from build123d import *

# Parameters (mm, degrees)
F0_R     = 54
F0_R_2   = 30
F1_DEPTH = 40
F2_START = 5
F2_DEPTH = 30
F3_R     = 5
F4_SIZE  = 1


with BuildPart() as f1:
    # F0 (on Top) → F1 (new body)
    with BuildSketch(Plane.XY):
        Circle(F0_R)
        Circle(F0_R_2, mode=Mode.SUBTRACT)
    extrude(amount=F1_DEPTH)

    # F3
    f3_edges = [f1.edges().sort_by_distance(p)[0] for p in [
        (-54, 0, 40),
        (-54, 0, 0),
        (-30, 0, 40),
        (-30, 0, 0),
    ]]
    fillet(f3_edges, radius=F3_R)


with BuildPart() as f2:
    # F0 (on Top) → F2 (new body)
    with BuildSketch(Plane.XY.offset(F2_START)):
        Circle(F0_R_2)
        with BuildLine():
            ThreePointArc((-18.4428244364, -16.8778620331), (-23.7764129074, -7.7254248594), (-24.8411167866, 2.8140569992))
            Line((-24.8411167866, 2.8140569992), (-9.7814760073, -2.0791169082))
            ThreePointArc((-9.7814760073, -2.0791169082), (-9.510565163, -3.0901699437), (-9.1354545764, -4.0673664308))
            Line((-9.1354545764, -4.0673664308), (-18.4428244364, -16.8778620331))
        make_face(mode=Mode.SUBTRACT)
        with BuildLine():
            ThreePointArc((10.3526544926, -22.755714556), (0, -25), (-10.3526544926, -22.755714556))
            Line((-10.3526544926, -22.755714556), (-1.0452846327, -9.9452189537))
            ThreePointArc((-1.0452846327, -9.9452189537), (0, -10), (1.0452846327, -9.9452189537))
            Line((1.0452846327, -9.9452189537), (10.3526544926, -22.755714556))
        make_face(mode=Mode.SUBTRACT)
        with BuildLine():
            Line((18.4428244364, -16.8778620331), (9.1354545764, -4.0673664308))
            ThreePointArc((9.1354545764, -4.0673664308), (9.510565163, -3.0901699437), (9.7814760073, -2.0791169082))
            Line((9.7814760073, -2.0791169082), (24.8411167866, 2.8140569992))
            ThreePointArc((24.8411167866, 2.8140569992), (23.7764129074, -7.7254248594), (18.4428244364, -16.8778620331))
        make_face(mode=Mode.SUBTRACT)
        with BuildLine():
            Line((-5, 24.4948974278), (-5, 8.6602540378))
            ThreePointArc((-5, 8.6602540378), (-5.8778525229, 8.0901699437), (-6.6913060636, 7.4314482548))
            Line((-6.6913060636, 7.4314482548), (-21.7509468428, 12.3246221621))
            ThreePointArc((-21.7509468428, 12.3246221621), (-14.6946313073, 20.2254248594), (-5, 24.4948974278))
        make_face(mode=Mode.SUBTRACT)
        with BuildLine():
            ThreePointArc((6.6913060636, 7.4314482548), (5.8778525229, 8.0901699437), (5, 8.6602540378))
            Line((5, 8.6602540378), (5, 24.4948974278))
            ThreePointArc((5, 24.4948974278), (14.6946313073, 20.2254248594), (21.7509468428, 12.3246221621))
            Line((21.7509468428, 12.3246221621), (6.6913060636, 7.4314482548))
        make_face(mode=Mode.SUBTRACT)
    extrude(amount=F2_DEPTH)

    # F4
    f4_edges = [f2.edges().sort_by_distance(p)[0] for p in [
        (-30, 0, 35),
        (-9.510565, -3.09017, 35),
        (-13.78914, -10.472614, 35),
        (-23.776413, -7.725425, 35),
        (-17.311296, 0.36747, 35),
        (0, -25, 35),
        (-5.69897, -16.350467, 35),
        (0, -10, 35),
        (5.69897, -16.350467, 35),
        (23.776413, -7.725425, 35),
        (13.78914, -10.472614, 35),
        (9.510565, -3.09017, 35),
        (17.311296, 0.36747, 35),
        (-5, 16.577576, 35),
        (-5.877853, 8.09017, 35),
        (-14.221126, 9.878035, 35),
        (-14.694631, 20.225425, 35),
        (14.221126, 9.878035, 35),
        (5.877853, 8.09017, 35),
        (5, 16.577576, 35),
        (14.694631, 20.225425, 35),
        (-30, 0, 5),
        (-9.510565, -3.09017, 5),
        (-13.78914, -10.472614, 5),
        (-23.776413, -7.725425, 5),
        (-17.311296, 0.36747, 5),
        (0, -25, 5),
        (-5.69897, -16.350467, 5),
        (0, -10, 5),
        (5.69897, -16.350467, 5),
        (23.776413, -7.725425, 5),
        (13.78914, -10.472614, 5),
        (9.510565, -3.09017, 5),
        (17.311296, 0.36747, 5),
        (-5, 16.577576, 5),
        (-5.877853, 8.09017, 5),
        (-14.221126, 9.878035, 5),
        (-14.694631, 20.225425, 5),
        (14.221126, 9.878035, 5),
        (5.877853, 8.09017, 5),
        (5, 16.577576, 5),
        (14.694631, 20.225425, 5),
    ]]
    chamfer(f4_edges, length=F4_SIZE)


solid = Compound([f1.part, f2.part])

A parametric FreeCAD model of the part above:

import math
import FreeCAD as App
import Part
import Sketcher
from FreeCAD import Vector
Q = App.Units.Quantity


def edges_at(feature, points):
    """Names of the edges that pass closest to the given points."""
    edges = feature.Shape.Edges
    near = lambda p: min(range(len(edges)), key=lambda i: edges[i].distToShape(Part.Vertex(*p))[0])
    return sorted({f"Edge{near(p) + 1}" for p in points})

doc = App.newDocument("Part")
body = doc.addObject("PartDesign::Body", "Body")

# Sketch on XY plane
sketch1 = doc.addObject("Sketcher::SketchObject", "Sketch")
body.addObject(sketch1)
sketch1.AttachmentSupport = (doc.XY_Plane, [""])
sketch1.MapMode = "FlatFace"
sketch1.addGeometry(Part.Circle(Vector(0, 0, 0), Vector(0, 0, 1), 54), False)
sketch1.addGeometry(Part.Circle(Vector(0, 0, 0), Vector(0, 0, 1), 30), False)
sketch1.addConstraint(Sketcher.Constraint("Coincident", 0, 3, -1, 1))
sketch1.addConstraint(Sketcher.Constraint("Coincident", 1, 3, -1, 1))
sketch1.addConstraint(Sketcher.Constraint("Diameter", 0, 108.0))
sketch1.addConstraint(Sketcher.Constraint("Diameter", 1, 60.0))
pad1 = doc.addObject("PartDesign::Pad", "Pad")
body.addObject(pad1)
pad1.Profile = sketch1
pad1.Length = 40
doc.recompute()

fillet = doc.addObject("PartDesign::Fillet", "Fillet")
body.addObject(fillet)
fillet.Base = (pad1, edges_at(pad1, [
    (-54, 0, 40),
    (-54, 0, 0),
    (-30, 0, 40),
    (-30, 0, 0),
]))
fillet.Radius = 5
body2 = doc.addObject("PartDesign::Body", "Body001")

# Sketch on XY plane
sketch2 = doc.addObject("Sketcher::SketchObject", "Sketch001")
body2.addObject(sketch2)
sketch2.AttachmentSupport = (doc.getObject("XY_Plane001"), [""])
sketch2.MapMode = "FlatFace"
sketch2.AttachmentOffset = App.Placement(Vector(0, 0, 5), App.Rotation())
sketch2.addGeometry(Part.Circle(Vector(0, 0, 0), Vector(0, 0, 1), 30), False)
sketch2.addGeometry(Part.LineSegment(Vector(1, -9.9, 0), Vector(10.4, -22.8, 0)), False)
sketch2.addGeometry(Part.ArcOfCircle(Part.Circle(Vector(0, 0, 0), Vector(0, 0, 1), 25), math.radians(-114), math.radians(-66)), False)
sketch2.addGeometry(Part.LineSegment(Vector(-10.4, -22.8, 0), Vector(-1, -9.9, 0)), False)
sketch2.addGeometry(Part.ArcOfCircle(Part.Circle(Vector(0, 0, 0), Vector(0, 0, 1), 10), math.radians(-96), math.radians(-84)), False)
sketch2.addGeometry(Part.LineSegment(Vector(-9.1, -4.1, 0), Vector(-18.4, -16.9, 0)), False)
sketch2.addGeometry(Part.ArcOfCircle(Part.Circle(Vector(0, 0, 0), Vector(0, 0, 1), 25), math.radians(174), math.radians(222)), False)
sketch2.addGeometry(Part.LineSegment(Vector(-24.8, 2.8, 0), Vector(-9.8, -2.1, 0)), False)
sketch2.addGeometry(Part.ArcOfCircle(Part.Circle(Vector(0, 0, 0), Vector(0, 0, 1), 10), math.radians(-168), math.radians(-156)), False)
sketch2.addGeometry(Part.ArcOfCircle(Part.Circle(Vector(0, 0, 0), Vector(0, 0, 1), 25), math.radians(-42), math.radians(6)), False)
sketch2.addGeometry(Part.LineSegment(Vector(18.4, -16.9, 0), Vector(9.1, -4.1, 0)), False)
sketch2.addGeometry(Part.ArcOfCircle(Part.Circle(Vector(0, 0, 0), Vector(0, 0, 1), 10), math.radians(-24), math.radians(-12)), False)
sketch2.addGeometry(Part.LineSegment(Vector(9.8, -2.1, 0), Vector(24.8, 2.8, 0)), False)
sketch2.addGeometry(Part.ArcOfCircle(Part.Circle(Vector(0, 0, 0), Vector(0, 0, 1), 25), math.radians(102), math.radians(150)), False)
sketch2.addGeometry(Part.LineSegment(Vector(-5, 24.5, 0), Vector(-5, 8.7, 0)), False)
sketch2.addGeometry(Part.ArcOfCircle(Part.Circle(Vector(0, 0, 0), Vector(0, 0, 1), 10), math.radians(120), math.radians(132)), False)
sketch2.addGeometry(Part.LineSegment(Vector(-6.7, 7.4, 0), Vector(-21.8, 12.3, 0)), False)
sketch2.addGeometry(Part.LineSegment(Vector(21.8, 12.3, 0), Vector(6.7, 7.4, 0)), False)
sketch2.addGeometry(Part.ArcOfCircle(Part.Circle(Vector(0, 0, 0), Vector(0, 0, 1), 10), math.radians(48), math.radians(60)), False)
sketch2.addGeometry(Part.LineSegment(Vector(5, 8.7, 0), Vector(5, 24.5, 0)), False)
sketch2.addGeometry(Part.ArcOfCircle(Part.Circle(Vector(0, 0, 0), Vector(0, 0, 1), 25), math.radians(30), math.radians(78)), False)
sketch2.addConstraint(Sketcher.Constraint("Coincident", 1, 2, 2, 2))
sketch2.addConstraint(Sketcher.Constraint("Coincident", 2, 1, 3, 1))
sketch2.addConstraint(Sketcher.Constraint("Coincident", 3, 2, 4, 1))
sketch2.addConstraint(Sketcher.Constraint("Coincident", 4, 2, 1, 1))
sketch2.addConstraint(Sketcher.Constraint("Coincident", 5, 2, 6, 2))
sketch2.addConstraint(Sketcher.Constraint("Coincident", 6, 1, 7, 1))
sketch2.addConstraint(Sketcher.Constraint("Coincident", 7, 2, 8, 1))
sketch2.addConstraint(Sketcher.Constraint("Coincident", 8, 2, 5, 1))
sketch2.addConstraint(Sketcher.Constraint("Coincident", 9, 1, 10, 1))
sketch2.addConstraint(Sketcher.Constraint("Coincident", 10, 2, 11, 1))
sketch2.addConstraint(Sketcher.Constraint("Coincident", 11, 2, 12, 1))
sketch2.addConstraint(Sketcher.Constraint("Coincident", 12, 2, 9, 2))
sketch2.addConstraint(Sketcher.Constraint("Coincident", 13, 1, 14, 1))
sketch2.addConstraint(Sketcher.Constraint("Coincident", 14, 2, 15, 1))
sketch2.addConstraint(Sketcher.Constraint("Coincident", 15, 2, 16, 1))
sketch2.addConstraint(Sketcher.Constraint("Coincident", 16, 2, 13, 2))
sketch2.addConstraint(Sketcher.Constraint("Coincident", 17, 2, 18, 1))
sketch2.addConstraint(Sketcher.Constraint("Coincident", 18, 2, 19, 1))
sketch2.addConstraint(Sketcher.Constraint("Coincident", 19, 2, 20, 2))
sketch2.addConstraint(Sketcher.Constraint("Coincident", 20, 1, 17, 1))
sketch2.addConstraint(Sketcher.Constraint("Vertical", 14))
sketch2.addConstraint(Sketcher.Constraint("Vertical", 19))
sketch2.addConstraint(Sketcher.Constraint("Coincident", 0, 3, -1, 1))
sketch2.addConstraint(Sketcher.Constraint("Coincident", 2, 3, -1, 1))
sketch2.addConstraint(Sketcher.Constraint("Coincident", 4, 3, -1, 1))
sketch2.addConstraint(Sketcher.Constraint("Coincident", 6, 3, -1, 1))
sketch2.addConstraint(Sketcher.Constraint("Coincident", 8, 3, -1, 1))
sketch2.addConstraint(Sketcher.Constraint("Coincident", 9, 3, -1, 1))
sketch2.addConstraint(Sketcher.Constraint("Coincident", 11, 3, -1, 1))
sketch2.addConstraint(Sketcher.Constraint("Coincident", 13, 3, -1, 1))
sketch2.addConstraint(Sketcher.Constraint("Coincident", 15, 3, -1, 1))
sketch2.addConstraint(Sketcher.Constraint("Coincident", 18, 3, -1, 1))
sketch2.addConstraint(Sketcher.Constraint("Coincident", 20, 3, -1, 1))
sketch2.addConstraint(Sketcher.Constraint("Equal", 2, 6))
sketch2.addConstraint(Sketcher.Constraint("Equal", 4, 8))
sketch2.addConstraint(Sketcher.Constraint("Equal", 6, 9))
sketch2.addConstraint(Sketcher.Constraint("Equal", 8, 11))
sketch2.addConstraint(Sketcher.Constraint("Equal", 9, 13))
sketch2.addConstraint(Sketcher.Constraint("Equal", 11, 15))
sketch2.addConstraint(Sketcher.Constraint("Equal", 15, 18))
sketch2.addConstraint(Sketcher.Constraint("Equal", 13, 20))
sketch2.addConstraint(Sketcher.Constraint("Parallel", 3, 5))
sketch2.addConstraint(Sketcher.Constraint("Parallel", 1, 10))
sketch2.addConstraint(Sketcher.Constraint("Parallel", 7, 16))
sketch2.addConstraint(Sketcher.Constraint("Parallel", 12, 17))
sketch2.addConstraint(Sketcher.Constraint("Horizontal", 1, 2, 2, 1))
sketch2.addConstraint(Sketcher.Constraint("Horizontal", 3, 2, 4, 2))
sketch2.addConstraint(Sketcher.Constraint("Horizontal", 5, 2, 9, 1))
sketch2.addConstraint(Sketcher.Constraint("Horizontal", 7, 2, 11, 2))
sketch2.addConstraint(Sketcher.Constraint("Horizontal", 6, 1, 12, 2))
sketch2.addConstraint(Sketcher.Constraint("Horizontal", 15, 2, 17, 2))
sketch2.addConstraint(Sketcher.Constraint("Horizontal", 14, 2, 18, 2))
sketch2.addConstraint(Sketcher.Constraint("Equal", 3, 5))
sketch2.addConstraint(Sketcher.Constraint("Equal", 5, 7))
sketch2.addConstraint(Sketcher.Constraint("Equal", 12, 16))
sketch2.addConstraint(Sketcher.Constraint("Diameter", 0, 60.0))
sketch2.addConstraint(Sketcher.Constraint("Radius", 2, 25.0))
sketch2.addConstraint(Sketcher.Constraint("Radius", 4, 10.0))
sketch2.addConstraint(Sketcher.Constraint("Angle", 1, Q("-54 deg")))
sketch2.addConstraint(Sketcher.Constraint("Angle", 7, Q("-18 deg")))
sketch2.addConstraint(Sketcher.Constraint("DistanceX", 13, 1, -1, 1, 5.0))
sketch2.addConstraint(Sketcher.Constraint("DistanceY", 3, 2, -1, 1, 9.945219))
pad2 = doc.addObject("PartDesign::Pad", "Pad001")
body2.addObject(pad2)
pad2.Profile = sketch2
pad2.Length = 30
doc.recompute()

chamfer = doc.addObject("PartDesign::Chamfer", "Chamfer")
body2.addObject(chamfer)
chamfer.Base = (pad2, edges_at(pad2, [
    (-30, 0, 35),
    (-9.511, -3.09, 35),
    (-13.789, -10.473, 35),
    (-23.776, -7.725, 35),
    (-17.311, 0.367, 35),
    (0, -25, 35),
    (-5.699, -16.35, 35),
    (0, -10, 35),
    (5.699, -16.35, 35),
    (23.776, -7.725, 35),
    (13.789, -10.473, 35),
    (9.511, -3.09, 35),
    (17.311, 0.367, 35),
    (-5, 16.578, 35),
    (-5.878, 8.09, 35),
    (-14.221, 9.878, 35),
    (-14.695, 20.225, 35),
    (14.221, 9.878, 35),
    (5.878, 8.09, 35),
    (5, 16.578, 35),
    (14.695, 20.225, 35),
    (-30, 0, 5),
    (-9.511, -3.09, 5),
    (-13.789, -10.473, 5),
    (-23.776, -7.725, 5),
    (-17.311, 0.367, 5),
    (0, -25, 5),
    (-5.699, -16.35, 5),
    (0, -10, 5),
    (5.699, -16.35, 5),
    (23.776, -7.725, 5),
    (13.789, -10.473, 5),
    (9.511, -3.09, 5),
    (17.311, 0.367, 5),
    (-5, 16.578, 5),
    (-5.878, 8.09, 5),
    (-14.221, 9.878, 5),
    (-14.695, 20.225, 5),
    (14.221, 9.878, 5),
    (5.878, 8.09, 5),
    (5, 16.578, 5),
    (14.695, 20.225, 5),
]))
chamfer.Size = 1

doc.recompute()
